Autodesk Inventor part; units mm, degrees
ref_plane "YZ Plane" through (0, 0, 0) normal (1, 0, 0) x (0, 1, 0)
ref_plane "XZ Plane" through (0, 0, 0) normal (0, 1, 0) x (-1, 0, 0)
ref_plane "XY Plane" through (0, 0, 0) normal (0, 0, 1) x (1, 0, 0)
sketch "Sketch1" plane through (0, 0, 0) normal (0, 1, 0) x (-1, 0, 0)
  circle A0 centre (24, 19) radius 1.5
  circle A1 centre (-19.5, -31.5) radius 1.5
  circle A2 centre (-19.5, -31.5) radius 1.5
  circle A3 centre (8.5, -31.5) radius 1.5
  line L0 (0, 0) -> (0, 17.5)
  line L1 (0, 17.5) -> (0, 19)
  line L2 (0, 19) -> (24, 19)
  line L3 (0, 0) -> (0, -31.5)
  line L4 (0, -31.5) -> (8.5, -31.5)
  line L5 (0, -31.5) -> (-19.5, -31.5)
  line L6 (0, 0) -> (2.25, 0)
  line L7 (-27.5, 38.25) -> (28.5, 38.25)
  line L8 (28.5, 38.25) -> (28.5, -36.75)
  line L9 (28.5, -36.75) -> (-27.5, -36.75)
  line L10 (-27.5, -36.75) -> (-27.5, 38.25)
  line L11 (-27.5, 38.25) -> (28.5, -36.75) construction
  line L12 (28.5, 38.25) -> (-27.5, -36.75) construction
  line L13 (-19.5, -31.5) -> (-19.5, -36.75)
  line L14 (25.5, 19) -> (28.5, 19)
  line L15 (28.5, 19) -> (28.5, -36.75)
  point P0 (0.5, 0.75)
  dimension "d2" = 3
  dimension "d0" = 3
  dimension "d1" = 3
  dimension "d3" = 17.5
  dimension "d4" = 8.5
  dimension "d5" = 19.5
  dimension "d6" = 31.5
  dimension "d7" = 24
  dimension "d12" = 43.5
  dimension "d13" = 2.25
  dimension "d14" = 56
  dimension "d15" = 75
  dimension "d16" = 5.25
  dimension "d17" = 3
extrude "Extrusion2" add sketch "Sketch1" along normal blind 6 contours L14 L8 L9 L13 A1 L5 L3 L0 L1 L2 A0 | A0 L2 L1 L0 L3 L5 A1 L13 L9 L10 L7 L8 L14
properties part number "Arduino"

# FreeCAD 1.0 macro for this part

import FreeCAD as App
import Part
import Sketcher

V = App.Vector

doc = App.newDocument("Part")
body = doc.addObject("PartDesign::Body", "Body")

# Sketch on XZ plane
sketch1 = body.newObject("Sketcher::SketchObject", "Sketch")
sketch1.AttachmentSupport = (doc.getObject("XZ_Plane"), [""])
sketch1.MapMode = "FlatFace"
sketch1.addGeometry([
    Part.LineSegment(V(-28.5, -36.8, 0), V(-28.5, 38.2, 0)),  # 0
    Part.LineSegment(V(-28.5, 38.2, 0), V(27.5, 38.2, 0)),  # 1
    Part.LineSegment(V(27.5, 38.2, 0), V(27.5, -36.8, 0)),  # 2
    Part.LineSegment(V(27.5, -36.8, 0), V(-28.5, -36.8, 0)),  # 3
    Part.Circle(V(19.5, -31.5, 0), V(0, 0, 1), 1.5),  # 4
    Part.Circle(V(-24, 19, 0), V(0, 0, 1), 1.5),  # 5
    Part.Circle(V(-8.5, -31.5, 0), V(0, 0, 1), 1.5),  # 6
], False)
sketch1.addConstraint([
    Sketcher.Constraint("Coincident", 0, 2, 1, 1),
    Sketcher.Constraint("Coincident", 1, 2, 2, 1),
    Sketcher.Constraint("Coincident", 2, 2, 3, 1),
    Sketcher.Constraint("Coincident", 3, 2, 0, 1),
    Sketcher.Constraint("Vertical", 0),
    Sketcher.Constraint("Horizontal", 1),
    Sketcher.Constraint("Vertical", 2),
    Sketcher.Constraint("Horizontal", 3),
    Sketcher.Constraint("Equal", 4, 5),
    Sketcher.Constraint("Equal", 5, 6),
    Sketcher.Constraint("Horizontal", 4, 3, 6, 3),
    Sketcher.Constraint("Diameter", 4, 3.0),
    Sketcher.Constraint("DistanceX", 1, 1, 1, 2, 56.0),
    Sketcher.Constraint("DistanceY", 0, 1, 0, 2, 75.0),
    Sketcher.Constraint("DistanceX", 5, 3, -1, 1, 24.0),
    Sketcher.Constraint("DistanceX", -1, 1, 4, 3, 19.5),
    Sketcher.Constraint("DistanceY", 4, 3, -1, 1, 31.5),
    Sketcher.Constraint("DistanceX", 6, 3, -1, 1, 8.5),
    Sketcher.Constraint("DistanceY", 2, 2, 4, 3, 5.25),
    Sketcher.Constraint("DistanceY", -1, 1, 5, 3, 19.0),
    Sketcher.Constraint("DistanceX", 0, 2, 6, 3, 20.0),
])
pad1 = body.newObject("PartDesign::Pad", "Pad")
pad1.Profile = sketch1
pad1.Length = 6
pad1.Reversed = True

doc.recompute()
